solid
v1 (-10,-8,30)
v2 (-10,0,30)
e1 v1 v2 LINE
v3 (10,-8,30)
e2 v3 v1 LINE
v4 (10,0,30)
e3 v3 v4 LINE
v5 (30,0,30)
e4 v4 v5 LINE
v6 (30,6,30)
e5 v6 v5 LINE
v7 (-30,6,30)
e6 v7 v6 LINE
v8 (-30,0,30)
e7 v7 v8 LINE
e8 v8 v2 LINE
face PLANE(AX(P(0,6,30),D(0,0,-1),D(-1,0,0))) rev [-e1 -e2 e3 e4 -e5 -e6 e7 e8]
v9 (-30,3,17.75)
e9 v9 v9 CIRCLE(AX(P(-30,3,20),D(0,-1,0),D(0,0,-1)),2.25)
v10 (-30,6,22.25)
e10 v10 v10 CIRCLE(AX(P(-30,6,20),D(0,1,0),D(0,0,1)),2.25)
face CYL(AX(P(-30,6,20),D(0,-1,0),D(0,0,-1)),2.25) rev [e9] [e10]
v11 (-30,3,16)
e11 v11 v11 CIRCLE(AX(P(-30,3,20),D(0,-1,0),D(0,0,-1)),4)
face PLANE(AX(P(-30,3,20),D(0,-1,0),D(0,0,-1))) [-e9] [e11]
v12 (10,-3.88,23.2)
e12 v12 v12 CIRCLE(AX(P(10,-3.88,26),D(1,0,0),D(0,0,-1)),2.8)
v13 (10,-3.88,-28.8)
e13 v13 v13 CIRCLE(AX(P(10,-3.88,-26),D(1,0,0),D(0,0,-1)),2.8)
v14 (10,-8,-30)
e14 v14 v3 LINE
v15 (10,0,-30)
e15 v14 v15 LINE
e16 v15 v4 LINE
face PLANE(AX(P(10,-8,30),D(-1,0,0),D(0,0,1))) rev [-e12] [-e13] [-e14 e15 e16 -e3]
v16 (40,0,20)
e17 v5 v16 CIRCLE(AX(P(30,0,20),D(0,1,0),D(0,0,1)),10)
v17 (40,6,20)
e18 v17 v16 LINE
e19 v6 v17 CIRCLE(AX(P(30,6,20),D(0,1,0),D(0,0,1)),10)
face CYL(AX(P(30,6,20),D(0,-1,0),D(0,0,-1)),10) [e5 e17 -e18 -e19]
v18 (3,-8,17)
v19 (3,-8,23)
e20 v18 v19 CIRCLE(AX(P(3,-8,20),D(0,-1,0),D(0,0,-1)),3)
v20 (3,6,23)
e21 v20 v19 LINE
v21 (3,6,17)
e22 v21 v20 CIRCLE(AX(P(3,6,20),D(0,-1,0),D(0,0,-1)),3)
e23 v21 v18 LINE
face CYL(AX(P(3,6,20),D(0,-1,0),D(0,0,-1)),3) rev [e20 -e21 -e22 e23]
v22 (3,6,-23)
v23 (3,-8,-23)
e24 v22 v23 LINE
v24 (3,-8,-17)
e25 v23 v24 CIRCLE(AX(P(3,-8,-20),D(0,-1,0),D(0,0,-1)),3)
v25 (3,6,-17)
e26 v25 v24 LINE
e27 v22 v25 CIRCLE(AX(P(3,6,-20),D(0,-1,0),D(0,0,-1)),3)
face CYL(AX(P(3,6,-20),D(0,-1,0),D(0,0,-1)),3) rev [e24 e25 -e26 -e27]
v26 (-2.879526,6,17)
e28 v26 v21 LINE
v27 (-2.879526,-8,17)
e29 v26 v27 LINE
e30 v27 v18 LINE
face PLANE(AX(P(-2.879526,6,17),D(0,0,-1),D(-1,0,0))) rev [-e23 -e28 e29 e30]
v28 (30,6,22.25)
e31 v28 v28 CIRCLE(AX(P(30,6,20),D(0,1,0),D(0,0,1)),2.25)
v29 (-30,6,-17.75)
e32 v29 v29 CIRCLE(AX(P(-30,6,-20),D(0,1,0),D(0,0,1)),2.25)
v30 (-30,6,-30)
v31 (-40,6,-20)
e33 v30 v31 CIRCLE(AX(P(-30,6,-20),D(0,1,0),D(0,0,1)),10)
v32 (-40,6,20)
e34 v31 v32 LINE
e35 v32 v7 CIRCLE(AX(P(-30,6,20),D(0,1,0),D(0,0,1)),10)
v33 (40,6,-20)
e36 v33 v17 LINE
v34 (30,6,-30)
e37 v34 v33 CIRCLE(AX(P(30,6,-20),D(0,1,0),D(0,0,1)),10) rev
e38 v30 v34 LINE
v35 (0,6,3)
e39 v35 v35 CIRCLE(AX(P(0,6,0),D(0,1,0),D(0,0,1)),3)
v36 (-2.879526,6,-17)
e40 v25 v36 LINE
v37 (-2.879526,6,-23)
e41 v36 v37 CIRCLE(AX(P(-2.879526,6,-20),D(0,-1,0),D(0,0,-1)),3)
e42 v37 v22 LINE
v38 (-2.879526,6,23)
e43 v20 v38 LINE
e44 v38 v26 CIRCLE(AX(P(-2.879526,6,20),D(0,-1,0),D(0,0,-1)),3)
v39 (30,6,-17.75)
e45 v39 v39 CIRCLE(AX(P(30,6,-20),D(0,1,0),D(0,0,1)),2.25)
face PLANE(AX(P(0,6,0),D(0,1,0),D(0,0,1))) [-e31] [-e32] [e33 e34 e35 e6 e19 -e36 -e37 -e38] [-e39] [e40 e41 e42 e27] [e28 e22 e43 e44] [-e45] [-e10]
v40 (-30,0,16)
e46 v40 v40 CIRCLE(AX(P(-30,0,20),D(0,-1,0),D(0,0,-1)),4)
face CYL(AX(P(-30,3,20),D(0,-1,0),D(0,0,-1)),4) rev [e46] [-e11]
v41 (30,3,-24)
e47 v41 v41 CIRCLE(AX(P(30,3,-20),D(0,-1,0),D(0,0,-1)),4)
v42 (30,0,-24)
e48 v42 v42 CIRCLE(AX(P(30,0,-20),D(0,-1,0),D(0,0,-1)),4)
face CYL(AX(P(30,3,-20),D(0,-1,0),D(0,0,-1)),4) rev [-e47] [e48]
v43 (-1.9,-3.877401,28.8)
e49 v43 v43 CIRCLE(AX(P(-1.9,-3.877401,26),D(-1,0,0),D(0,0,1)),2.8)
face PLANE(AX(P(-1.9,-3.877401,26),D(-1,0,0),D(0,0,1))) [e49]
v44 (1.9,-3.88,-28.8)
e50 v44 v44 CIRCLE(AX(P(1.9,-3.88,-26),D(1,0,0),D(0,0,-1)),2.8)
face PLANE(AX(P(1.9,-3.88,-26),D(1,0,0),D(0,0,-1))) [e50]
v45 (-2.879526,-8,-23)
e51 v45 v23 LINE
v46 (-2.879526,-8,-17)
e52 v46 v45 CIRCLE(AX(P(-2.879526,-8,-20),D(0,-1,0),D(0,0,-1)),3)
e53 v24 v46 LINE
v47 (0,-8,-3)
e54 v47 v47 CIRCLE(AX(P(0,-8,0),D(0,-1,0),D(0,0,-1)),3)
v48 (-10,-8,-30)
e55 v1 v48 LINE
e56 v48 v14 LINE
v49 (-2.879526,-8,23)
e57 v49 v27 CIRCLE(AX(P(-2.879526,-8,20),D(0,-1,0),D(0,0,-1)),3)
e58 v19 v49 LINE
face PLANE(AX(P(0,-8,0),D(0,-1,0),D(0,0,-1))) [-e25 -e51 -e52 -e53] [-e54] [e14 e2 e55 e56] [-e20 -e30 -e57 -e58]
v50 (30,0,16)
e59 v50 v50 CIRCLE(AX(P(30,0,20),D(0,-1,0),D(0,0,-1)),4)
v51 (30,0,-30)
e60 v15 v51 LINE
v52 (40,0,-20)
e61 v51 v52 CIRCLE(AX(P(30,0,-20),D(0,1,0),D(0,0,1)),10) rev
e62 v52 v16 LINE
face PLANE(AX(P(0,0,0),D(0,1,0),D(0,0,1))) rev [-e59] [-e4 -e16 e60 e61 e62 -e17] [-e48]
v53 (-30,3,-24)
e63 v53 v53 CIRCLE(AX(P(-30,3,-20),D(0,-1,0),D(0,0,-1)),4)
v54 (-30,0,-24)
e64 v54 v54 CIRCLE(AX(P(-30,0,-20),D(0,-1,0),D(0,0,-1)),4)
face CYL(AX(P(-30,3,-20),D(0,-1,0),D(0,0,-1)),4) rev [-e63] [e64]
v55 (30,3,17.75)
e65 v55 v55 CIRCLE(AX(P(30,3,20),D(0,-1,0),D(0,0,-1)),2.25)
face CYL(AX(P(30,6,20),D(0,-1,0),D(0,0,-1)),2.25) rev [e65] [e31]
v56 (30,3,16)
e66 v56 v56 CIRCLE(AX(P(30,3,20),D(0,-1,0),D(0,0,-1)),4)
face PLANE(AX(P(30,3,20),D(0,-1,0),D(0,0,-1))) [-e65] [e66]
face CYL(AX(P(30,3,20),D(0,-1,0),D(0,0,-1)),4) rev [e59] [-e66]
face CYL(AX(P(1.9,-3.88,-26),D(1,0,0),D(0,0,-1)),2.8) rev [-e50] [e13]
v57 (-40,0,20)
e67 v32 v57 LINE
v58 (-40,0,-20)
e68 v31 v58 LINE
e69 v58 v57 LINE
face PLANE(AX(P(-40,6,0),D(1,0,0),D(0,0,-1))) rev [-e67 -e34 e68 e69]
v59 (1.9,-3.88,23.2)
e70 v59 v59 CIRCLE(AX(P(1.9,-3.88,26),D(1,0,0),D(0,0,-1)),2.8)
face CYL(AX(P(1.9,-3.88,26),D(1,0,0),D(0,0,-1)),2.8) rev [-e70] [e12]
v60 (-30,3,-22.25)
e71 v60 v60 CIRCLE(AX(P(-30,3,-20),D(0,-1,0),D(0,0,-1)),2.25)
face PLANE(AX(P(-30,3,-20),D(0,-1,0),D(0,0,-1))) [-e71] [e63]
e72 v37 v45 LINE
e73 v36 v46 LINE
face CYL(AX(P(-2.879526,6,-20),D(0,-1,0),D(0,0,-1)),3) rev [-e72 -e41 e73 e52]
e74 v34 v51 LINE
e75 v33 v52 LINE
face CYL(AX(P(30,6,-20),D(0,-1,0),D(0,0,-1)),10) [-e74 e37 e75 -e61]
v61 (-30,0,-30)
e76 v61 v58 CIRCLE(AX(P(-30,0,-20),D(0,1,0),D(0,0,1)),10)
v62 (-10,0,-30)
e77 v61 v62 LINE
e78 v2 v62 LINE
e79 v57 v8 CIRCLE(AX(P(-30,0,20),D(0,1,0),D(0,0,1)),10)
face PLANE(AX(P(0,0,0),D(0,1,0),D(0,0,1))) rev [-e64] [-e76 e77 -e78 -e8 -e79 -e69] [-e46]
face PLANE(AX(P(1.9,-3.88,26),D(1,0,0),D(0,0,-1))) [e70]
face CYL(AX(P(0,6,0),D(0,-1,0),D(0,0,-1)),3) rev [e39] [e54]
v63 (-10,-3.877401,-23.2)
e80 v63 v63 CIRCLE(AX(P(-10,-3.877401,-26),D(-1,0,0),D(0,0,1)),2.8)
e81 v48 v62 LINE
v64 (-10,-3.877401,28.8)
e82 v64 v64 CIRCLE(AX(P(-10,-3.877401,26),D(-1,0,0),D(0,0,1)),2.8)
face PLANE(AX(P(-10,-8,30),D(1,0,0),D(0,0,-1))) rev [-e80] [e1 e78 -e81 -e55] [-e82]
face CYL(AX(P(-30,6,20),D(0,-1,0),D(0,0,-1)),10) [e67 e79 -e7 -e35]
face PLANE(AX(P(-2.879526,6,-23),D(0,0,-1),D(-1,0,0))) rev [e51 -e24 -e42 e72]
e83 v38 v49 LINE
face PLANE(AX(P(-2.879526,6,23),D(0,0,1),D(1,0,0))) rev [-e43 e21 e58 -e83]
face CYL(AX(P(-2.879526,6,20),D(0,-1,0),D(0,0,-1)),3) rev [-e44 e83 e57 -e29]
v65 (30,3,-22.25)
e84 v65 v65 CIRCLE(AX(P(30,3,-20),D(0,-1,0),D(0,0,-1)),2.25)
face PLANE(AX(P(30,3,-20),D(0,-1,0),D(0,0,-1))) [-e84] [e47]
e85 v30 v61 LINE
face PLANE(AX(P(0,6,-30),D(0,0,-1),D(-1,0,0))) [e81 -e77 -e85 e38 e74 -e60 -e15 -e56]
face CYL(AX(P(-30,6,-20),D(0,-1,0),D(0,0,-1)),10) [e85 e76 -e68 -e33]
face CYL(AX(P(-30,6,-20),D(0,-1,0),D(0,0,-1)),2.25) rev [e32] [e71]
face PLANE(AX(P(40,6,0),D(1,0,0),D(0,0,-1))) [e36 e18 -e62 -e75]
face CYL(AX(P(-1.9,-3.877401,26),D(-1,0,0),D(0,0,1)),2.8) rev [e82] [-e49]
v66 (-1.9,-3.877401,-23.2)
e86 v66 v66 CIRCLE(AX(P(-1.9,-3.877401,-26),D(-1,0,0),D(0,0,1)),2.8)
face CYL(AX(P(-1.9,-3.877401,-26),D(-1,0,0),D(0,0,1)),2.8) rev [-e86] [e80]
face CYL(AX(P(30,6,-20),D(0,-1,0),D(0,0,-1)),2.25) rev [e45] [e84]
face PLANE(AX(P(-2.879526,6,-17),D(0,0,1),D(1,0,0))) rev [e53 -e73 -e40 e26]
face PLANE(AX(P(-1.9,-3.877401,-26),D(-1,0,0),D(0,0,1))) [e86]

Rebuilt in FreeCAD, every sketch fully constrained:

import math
import FreeCAD as App
import Part
import Sketcher
from FreeCAD import Vector


def add_polygon(sketch, points):
    """Adds a closed chain of lines whose ends are joined by coincident constraints."""
    first, n = sketch.GeometryCount, len(points)
    for a, b in zip(points, points[1:] + points[:1]):
        sketch.addGeometry(Part.LineSegment(App.Vector(*a, 0), App.Vector(*b, 0)), False)
    for i in range(n):
        sketch.addConstraint(Sketcher.Constraint("Coincident", first + i, 2, first + (i + 1) % n, 1))

doc = App.newDocument("Part")
body = doc.addObject("PartDesign::Body", "Body")

# Sketch on XZ plane
sketch1 = doc.addObject("Sketcher::SketchObject", "Sketch")
body.addObject(sketch1)
sketch1.AttachmentSupport = (doc.XZ_Plane, [""])
sketch1.MapMode = "FlatFace"
sketch1.addGeometry(Part.ArcOfCircle(Part.Circle(Vector(30, -20, 0), Vector(0, 0, 1), 10), math.radians(-90), math.radians(0)), False)
sketch1.addGeometry(Part.LineSegment(Vector(30, -30, 0), Vector(-30, -30, 0)), False)
sketch1.addGeometry(Part.ArcOfCircle(Part.Circle(Vector(-30, -20, 0), Vector(0, 0, 1), 10), math.radians(180), math.radians(270)), False)
sketch1.addGeometry(Part.LineSegment(Vector(-40, -20, 0), Vector(-40, 20, 0)), False)
sketch1.addGeometry(Part.ArcOfCircle(Part.Circle(Vector(-30, 20, 0), Vector(0, 0, 1), 10), math.radians(90), math.radians(180)), False)
sketch1.addGeometry(Part.LineSegment(Vector(-30, 30, 0), Vector(30, 30, 0)), False)
sketch1.addGeometry(Part.ArcOfCircle(Part.Circle(Vector(30, 20, 0), Vector(0, 0, 1), 10), math.radians(0), math.radians(90)), False)
sketch1.addGeometry(Part.LineSegment(Vector(40, 20, 0), Vector(40, -20, 0)), False)
sketch1.addGeometry(Part.Circle(Vector(30, 20, 0), Vector(0, 0, 1), 2.2), False)
sketch1.addGeometry(Part.Circle(Vector(-30, 20, 0), Vector(0, 0, 1), 2.2), False)
sketch1.addGeometry(Part.Circle(Vector(30, -20, 0), Vector(0, 0, 1), 2.2), False)
sketch1.addGeometry(Part.Circle(Vector(0, 0, 0), Vector(0, 0, 1), 3), False)
sketch1.addGeometry(Part.Circle(Vector(-30, -20, 0), Vector(0, 0, 1), 2.2), False)
sketch1.addConstraint(Sketcher.Constraint("Tangent", 0, 1, 1, 1))
sketch1.addConstraint(Sketcher.Constraint("Tangent", 1, 2, 2, 2))
sketch1.addConstraint(Sketcher.Constraint("Tangent", 2, 1, 3, 1))
sketch1.addConstraint(Sketcher.Constraint("Tangent", 3, 2, 4, 2))
sketch1.addConstraint(Sketcher.Constraint("Tangent", 4, 1, 5, 1))
sketch1.addConstraint(Sketcher.Constraint("Tangent", 5, 2, 6, 2))
sketch1.addConstraint(Sketcher.Constraint("Tangent", 6, 1, 7, 1))
sketch1.addConstraint(Sketcher.Constraint("Tangent", 7, 2, 0, 2))
sketch1.addConstraint(Sketcher.Constraint("Horizontal", 1))
sketch1.addConstraint(Sketcher.Constraint("Vertical", 3))
sketch1.addConstraint(Sketcher.Constraint("Horizontal", 5))
sketch1.addConstraint(Sketcher.Constraint("Vertical", 7))
sketch1.addConstraint(Sketcher.Constraint("Coincident", 11, 3, -1, 1))
sketch1.addConstraint(Sketcher.Constraint("Coincident", 8, 3, 6, 3))
sketch1.addConstraint(Sketcher.Constraint("Coincident", 9, 3, 4, 3))
sketch1.addConstraint(Sketcher.Constraint("Coincident", 10, 3, 0, 3))
sketch1.addConstraint(Sketcher.Constraint("Coincident", 12, 3, 2, 3))
sketch1.addConstraint(Sketcher.Constraint("Equal", 0, 2))
sketch1.addConstraint(Sketcher.Constraint("Equal", 2, 4))
sketch1.addConstraint(Sketcher.Constraint("Equal", 4, 6))
sketch1.addConstraint(Sketcher.Constraint("Equal", 8, 9))
sketch1.addConstraint(Sketcher.Constraint("Equal", 9, 10))
sketch1.addConstraint(Sketcher.Constraint("Equal", 10, 12))
sketch1.addConstraint(Sketcher.Constraint("Symmetric", 0, 3, 4, 3, -1, 1))
sketch1.addConstraint(Sketcher.Constraint("Diameter", 11, 6.0))
sketch1.addConstraint(Sketcher.Constraint("Radius", 0, 10.0))
sketch1.addConstraint(Sketcher.Constraint("Diameter", 8, 4.5))
sketch1.addConstraint(Sketcher.Constraint("DistanceX", 1, 2, 1, 1, 60.0))
sketch1.addConstraint(Sketcher.Constraint("DistanceY", 3, 1, 3, 2, 40.0))
pad1 = doc.addObject("PartDesign::Pad", "Pad")
body.addObject(pad1)
pad1.Profile = sketch1
pad1.Length = 6
pad1.Reversed = True

# Sketch on XZ plane
sketch2 = doc.addObject("Sketcher::SketchObject", "Sketch001")
body.addObject(sketch2)
sketch2.AttachmentSupport = (doc.XZ_Plane, [""])
sketch2.MapMode = "FlatFace"
sketch2.AttachmentOffset = App.Placement(Vector(0, 0, 8), App.Rotation())
add_polygon(sketch2, [(-10, 30), (-10, -30), (10, -30), (10, 30)])  # lines 0-3
sketch2.addGeometry(Part.Circle(Vector(0, 0, 0), Vector(0, 0, 1), 3), False)  # 4
sketch2.addConstraint(Sketcher.Constraint("Vertical", 0))
sketch2.addConstraint(Sketcher.Constraint("Horizontal", 1))
sketch2.addConstraint(Sketcher.Constraint("Vertical", 2))
sketch2.addConstraint(Sketcher.Constraint("Horizontal", 3))
sketch2.addConstraint(Sketcher.Constraint("Coincident", 4, 3, -1, 1))
sketch2.addConstraint(Sketcher.Constraint("Symmetric", 0, 2, 2, 2, -1, 1))
sketch2.addConstraint(Sketcher.Constraint("Diameter", 4, 6.0))
sketch2.addConstraint(Sketcher.Constraint("DistanceX", 1, 1, 1, 2, 20.0))
sketch2.addConstraint(Sketcher.Constraint("DistanceY", 0, 2, 0, 1, 60.0))
pad2 = doc.addObject("PartDesign::Pad", "Pad001")
body.addObject(pad2)
pad2.Profile = sketch2
pad2.Length = 8
pad2.Reversed = True

# Sketch on XZ plane
sketch3 = doc.addObject("Sketcher::SketchObject", "Sketch002")
body.addObject(sketch3)
sketch3.AttachmentSupport = (doc.XZ_Plane, [""])
sketch3.MapMode = "FlatFace"
sketch3.addGeometry(Part.Circle(Vector(-30, 20, 0), Vector(0, 0, 1), 4), False)
sketch3.addGeometry(Part.Circle(Vector(-30, -20, 0), Vector(0, 0, 1), 4), False)
sketch3.addGeometry(Part.Circle(Vector(30, 20, 0), Vector(0, 0, 1), 4), False)
sketch3.addGeometry(Part.Circle(Vector(30, -20, 0), Vector(0, 0, 1), 4), False)
sketch3.addConstraint(Sketcher.Constraint("Equal", 0, 1))
sketch3.addConstraint(Sketcher.Constraint("Equal", 1, 2))
sketch3.addConstraint(Sketcher.Constraint("Equal", 2, 3))
sketch3.addConstraint(Sketcher.Constraint("Symmetric", 1, 3, 2, 3, -1, 1))
sketch3.addConstraint(Sketcher.Constraint("Symmetric", 0, 3, 3, 3, -1, 1))
sketch3.addConstraint(Sketcher.Constraint("Symmetric", 0, 3, 2, 3, -2))
sketch3.addConstraint(Sketcher.Constraint("Diameter", 0, 8.0))
sketch3.addConstraint(Sketcher.Constraint("DistanceX", 0, 3, -1, 1, 30.0))
sketch3.addConstraint(Sketcher.Constraint("DistanceY", -1, 1, 0, 3, 20.0))
pocket1 = doc.addObject("PartDesign::Pocket", "Pocket")
body.addObject(pocket1)
pocket1.Profile = sketch3
pocket1.Length = 3

# Sketch on YZ plane
sketch4 = doc.addObject("Sketcher::SketchObject", "Sketch003")
body.addObject(sketch4)
sketch4.AttachmentSupport = (doc.YZ_Plane, [""])
sketch4.MapMode = "FlatFace"
sketch4.AttachmentOffset = App.Placement(Vector(0, 0, -10), App.Rotation())
sketch4.addGeometry(Part.Circle(Vector(-3.9, 26, 0), Vector(0, 0, 1), 2.8), False)
sketch4.addGeometry(Part.Circle(Vector(-3.9, -26, 0), Vector(0, 0, 1), 2.8), False)
sketch4.addConstraint(Sketcher.Constraint("Equal", 0, 1))
sketch4.addConstraint(Sketcher.Constraint("Symmetric", 0, 3, 1, 3, -1))
sketch4.addConstraint(Sketcher.Constraint("Diameter", 0, 5.6))
sketch4.addConstraint(Sketcher.Constraint("DistanceY", -1, 1, 0, 3, 26.0))
sketch4.addConstraint(Sketcher.Constraint("DistanceX", 0, 3, -1, 1, 3.877401))
pocket2 = doc.addObject("PartDesign::Pocket", "Pocket001")
body.addObject(pocket2)
pocket2.Profile = sketch4
pocket2.Length = 8.1
pocket2.Reversed = True

# Sketch on XZ plane
sketch5 = doc.addObject("Sketcher::SketchObject", "Sketch004")
body.addObject(sketch5)
sketch5.AttachmentSupport = (doc.XZ_Plane, [""])
sketch5.MapMode = "FlatFace"
sketch5.AttachmentOffset = App.Placement(Vector(0, 0, 8), App.Rotation())
sketch5.addGeometry(Part.LineSegment(Vector(3, 23, 0), Vector(-2.9, 23, 0)), False)
sketch5.addGeometry(Part.ArcOfCircle(Part.Circle(Vector(-2.9, 20, 0), Vector(0, 0, 1), 3), math.radians(90), math.radians(270)), False)
sketch5.addGeometry(Part.LineSegment(Vector(-2.9, 17, 0), Vector(3, 17, 0)), False)
sketch5.addGeometry(Part.ArcOfCircle(Part.Circle(Vector(3, 20, 0), Vector(0, 0, 1), 3), math.radians(-90), math.radians(90)), False)
sketch5.addGeometry(Part.LineSegment(Vector(3, -17, 0), Vector(-2.9, -17, 0)), False)
sketch5.addGeometry(Part.ArcOfCircle(Part.Circle(Vector(-2.9, -20, 0), Vector(0, 0, 1), 3), math.radians(90), math.radians(270)), False)
sketch5.addGeometry(Part.LineSegment(Vector(-2.9, -23, 0), Vector(3, -23, 0)), False)
sketch5.addGeometry(Part.ArcOfCircle(Part.Circle(Vector(3, -20, 0), Vector(0, 0, 1), 3), math.radians(-90), math.radians(90)), False)
sketch5.addConstraint(Sketcher.Constraint("Tangent", 0, 2, 1, 1))
sketch5.addConstraint(Sketcher.Constraint("Tangent", 1, 2, 2, 1))
sketch5.addConstraint(Sketcher.Constraint("Tangent", 2, 2, 3, 1))
sketch5.addConstraint(Sketcher.Constraint("Tangent", 3, 2, 0, 1))
sketch5.addConstraint(Sketcher.Constraint("Tangent", 4, 2, 5, 1))
sketch5.addConstraint(Sketcher.Constraint("Tangent", 5, 2, 6, 1))
sketch5.addConstraint(Sketcher.Constraint("Tangent", 6, 2, 7, 1))
sketch5.addConstraint(Sketcher.Constraint("Tangent", 7, 2, 4, 1))
sketch5.addConstraint(Sketcher.Constraint("Horizontal", 0))
sketch5.addConstraint(Sketcher.Constraint("Horizontal", 2))
sketch5.addConstraint(Sketcher.Constraint("Horizontal", 4))
sketch5.addConstraint(Sketcher.Constraint("Horizontal", 6))
sketch5.addConstraint(Sketcher.Constraint("Equal", 3, 5))
sketch5.addConstraint(Sketcher.Constraint("Symmetric", 1, 3, 5, 3, -1))
sketch5.addConstraint(Sketcher.Constraint("Vertical", 3, 3, 7, 3))
sketch5.addConstraint(Sketcher.Constraint("Radius", 1, 3.0))
sketch5.addConstraint(Sketcher.Constraint("DistanceY", -1, 1, 1, 3, 20.0))
sketch5.addConstraint(Sketcher.Constraint("DistanceX", -1, 1, 3, 3, 3.0))
sketch5.addConstraint(Sketcher.Constraint("DistanceX", 0, 2, 0, 1, 5.879526))
pocket3 = doc.addObject("PartDesign::Pocket", "Pocket002")
body.addObject(pocket3)
pocket3.Profile = sketch5
pocket3.Type = "ThroughAll"

# Sketch on YZ plane
sketch6 = doc.addObject("Sketcher::SketchObject", "Sketch005")
body.addObject(sketch6)
sketch6.AttachmentSupport = (doc.YZ_Plane, [""])
sketch6.MapMode = "FlatFace"
sketch6.AttachmentOffset = App.Placement(Vector(0, 0, 10), App.Rotation())
sketch6.addGeometry(Part.Circle(Vector(-3.9, 26, 0), Vector(0, 0, 1), 2.8), False)
sketch6.addGeometry(Part.Circle(Vector(-3.9, -26, 0), Vector(0, 0, 1), 2.8), False)
sketch6.addConstraint(Sketcher.Constraint("Equal", 0, 1))
sketch6.addConstraint(Sketcher.Constraint("Symmetric", 0, 3, 1, 3, -1))
sketch6.addConstraint(Sketcher.Constraint("Diameter", 0, 5.6))
sketch6.addConstraint(Sketcher.Constraint("DistanceY", -1, 1, 0, 3, 26.0))
sketch6.addConstraint(Sketcher.Constraint("DistanceX", 0, 3, -1, 1, 3.88))
pocket4 = doc.addObject("PartDesign::Pocket", "Pocket003")
body.addObject(pocket4)
pocket4.Profile = sketch6
pocket4.Length = 8.1

doc.recompute()
